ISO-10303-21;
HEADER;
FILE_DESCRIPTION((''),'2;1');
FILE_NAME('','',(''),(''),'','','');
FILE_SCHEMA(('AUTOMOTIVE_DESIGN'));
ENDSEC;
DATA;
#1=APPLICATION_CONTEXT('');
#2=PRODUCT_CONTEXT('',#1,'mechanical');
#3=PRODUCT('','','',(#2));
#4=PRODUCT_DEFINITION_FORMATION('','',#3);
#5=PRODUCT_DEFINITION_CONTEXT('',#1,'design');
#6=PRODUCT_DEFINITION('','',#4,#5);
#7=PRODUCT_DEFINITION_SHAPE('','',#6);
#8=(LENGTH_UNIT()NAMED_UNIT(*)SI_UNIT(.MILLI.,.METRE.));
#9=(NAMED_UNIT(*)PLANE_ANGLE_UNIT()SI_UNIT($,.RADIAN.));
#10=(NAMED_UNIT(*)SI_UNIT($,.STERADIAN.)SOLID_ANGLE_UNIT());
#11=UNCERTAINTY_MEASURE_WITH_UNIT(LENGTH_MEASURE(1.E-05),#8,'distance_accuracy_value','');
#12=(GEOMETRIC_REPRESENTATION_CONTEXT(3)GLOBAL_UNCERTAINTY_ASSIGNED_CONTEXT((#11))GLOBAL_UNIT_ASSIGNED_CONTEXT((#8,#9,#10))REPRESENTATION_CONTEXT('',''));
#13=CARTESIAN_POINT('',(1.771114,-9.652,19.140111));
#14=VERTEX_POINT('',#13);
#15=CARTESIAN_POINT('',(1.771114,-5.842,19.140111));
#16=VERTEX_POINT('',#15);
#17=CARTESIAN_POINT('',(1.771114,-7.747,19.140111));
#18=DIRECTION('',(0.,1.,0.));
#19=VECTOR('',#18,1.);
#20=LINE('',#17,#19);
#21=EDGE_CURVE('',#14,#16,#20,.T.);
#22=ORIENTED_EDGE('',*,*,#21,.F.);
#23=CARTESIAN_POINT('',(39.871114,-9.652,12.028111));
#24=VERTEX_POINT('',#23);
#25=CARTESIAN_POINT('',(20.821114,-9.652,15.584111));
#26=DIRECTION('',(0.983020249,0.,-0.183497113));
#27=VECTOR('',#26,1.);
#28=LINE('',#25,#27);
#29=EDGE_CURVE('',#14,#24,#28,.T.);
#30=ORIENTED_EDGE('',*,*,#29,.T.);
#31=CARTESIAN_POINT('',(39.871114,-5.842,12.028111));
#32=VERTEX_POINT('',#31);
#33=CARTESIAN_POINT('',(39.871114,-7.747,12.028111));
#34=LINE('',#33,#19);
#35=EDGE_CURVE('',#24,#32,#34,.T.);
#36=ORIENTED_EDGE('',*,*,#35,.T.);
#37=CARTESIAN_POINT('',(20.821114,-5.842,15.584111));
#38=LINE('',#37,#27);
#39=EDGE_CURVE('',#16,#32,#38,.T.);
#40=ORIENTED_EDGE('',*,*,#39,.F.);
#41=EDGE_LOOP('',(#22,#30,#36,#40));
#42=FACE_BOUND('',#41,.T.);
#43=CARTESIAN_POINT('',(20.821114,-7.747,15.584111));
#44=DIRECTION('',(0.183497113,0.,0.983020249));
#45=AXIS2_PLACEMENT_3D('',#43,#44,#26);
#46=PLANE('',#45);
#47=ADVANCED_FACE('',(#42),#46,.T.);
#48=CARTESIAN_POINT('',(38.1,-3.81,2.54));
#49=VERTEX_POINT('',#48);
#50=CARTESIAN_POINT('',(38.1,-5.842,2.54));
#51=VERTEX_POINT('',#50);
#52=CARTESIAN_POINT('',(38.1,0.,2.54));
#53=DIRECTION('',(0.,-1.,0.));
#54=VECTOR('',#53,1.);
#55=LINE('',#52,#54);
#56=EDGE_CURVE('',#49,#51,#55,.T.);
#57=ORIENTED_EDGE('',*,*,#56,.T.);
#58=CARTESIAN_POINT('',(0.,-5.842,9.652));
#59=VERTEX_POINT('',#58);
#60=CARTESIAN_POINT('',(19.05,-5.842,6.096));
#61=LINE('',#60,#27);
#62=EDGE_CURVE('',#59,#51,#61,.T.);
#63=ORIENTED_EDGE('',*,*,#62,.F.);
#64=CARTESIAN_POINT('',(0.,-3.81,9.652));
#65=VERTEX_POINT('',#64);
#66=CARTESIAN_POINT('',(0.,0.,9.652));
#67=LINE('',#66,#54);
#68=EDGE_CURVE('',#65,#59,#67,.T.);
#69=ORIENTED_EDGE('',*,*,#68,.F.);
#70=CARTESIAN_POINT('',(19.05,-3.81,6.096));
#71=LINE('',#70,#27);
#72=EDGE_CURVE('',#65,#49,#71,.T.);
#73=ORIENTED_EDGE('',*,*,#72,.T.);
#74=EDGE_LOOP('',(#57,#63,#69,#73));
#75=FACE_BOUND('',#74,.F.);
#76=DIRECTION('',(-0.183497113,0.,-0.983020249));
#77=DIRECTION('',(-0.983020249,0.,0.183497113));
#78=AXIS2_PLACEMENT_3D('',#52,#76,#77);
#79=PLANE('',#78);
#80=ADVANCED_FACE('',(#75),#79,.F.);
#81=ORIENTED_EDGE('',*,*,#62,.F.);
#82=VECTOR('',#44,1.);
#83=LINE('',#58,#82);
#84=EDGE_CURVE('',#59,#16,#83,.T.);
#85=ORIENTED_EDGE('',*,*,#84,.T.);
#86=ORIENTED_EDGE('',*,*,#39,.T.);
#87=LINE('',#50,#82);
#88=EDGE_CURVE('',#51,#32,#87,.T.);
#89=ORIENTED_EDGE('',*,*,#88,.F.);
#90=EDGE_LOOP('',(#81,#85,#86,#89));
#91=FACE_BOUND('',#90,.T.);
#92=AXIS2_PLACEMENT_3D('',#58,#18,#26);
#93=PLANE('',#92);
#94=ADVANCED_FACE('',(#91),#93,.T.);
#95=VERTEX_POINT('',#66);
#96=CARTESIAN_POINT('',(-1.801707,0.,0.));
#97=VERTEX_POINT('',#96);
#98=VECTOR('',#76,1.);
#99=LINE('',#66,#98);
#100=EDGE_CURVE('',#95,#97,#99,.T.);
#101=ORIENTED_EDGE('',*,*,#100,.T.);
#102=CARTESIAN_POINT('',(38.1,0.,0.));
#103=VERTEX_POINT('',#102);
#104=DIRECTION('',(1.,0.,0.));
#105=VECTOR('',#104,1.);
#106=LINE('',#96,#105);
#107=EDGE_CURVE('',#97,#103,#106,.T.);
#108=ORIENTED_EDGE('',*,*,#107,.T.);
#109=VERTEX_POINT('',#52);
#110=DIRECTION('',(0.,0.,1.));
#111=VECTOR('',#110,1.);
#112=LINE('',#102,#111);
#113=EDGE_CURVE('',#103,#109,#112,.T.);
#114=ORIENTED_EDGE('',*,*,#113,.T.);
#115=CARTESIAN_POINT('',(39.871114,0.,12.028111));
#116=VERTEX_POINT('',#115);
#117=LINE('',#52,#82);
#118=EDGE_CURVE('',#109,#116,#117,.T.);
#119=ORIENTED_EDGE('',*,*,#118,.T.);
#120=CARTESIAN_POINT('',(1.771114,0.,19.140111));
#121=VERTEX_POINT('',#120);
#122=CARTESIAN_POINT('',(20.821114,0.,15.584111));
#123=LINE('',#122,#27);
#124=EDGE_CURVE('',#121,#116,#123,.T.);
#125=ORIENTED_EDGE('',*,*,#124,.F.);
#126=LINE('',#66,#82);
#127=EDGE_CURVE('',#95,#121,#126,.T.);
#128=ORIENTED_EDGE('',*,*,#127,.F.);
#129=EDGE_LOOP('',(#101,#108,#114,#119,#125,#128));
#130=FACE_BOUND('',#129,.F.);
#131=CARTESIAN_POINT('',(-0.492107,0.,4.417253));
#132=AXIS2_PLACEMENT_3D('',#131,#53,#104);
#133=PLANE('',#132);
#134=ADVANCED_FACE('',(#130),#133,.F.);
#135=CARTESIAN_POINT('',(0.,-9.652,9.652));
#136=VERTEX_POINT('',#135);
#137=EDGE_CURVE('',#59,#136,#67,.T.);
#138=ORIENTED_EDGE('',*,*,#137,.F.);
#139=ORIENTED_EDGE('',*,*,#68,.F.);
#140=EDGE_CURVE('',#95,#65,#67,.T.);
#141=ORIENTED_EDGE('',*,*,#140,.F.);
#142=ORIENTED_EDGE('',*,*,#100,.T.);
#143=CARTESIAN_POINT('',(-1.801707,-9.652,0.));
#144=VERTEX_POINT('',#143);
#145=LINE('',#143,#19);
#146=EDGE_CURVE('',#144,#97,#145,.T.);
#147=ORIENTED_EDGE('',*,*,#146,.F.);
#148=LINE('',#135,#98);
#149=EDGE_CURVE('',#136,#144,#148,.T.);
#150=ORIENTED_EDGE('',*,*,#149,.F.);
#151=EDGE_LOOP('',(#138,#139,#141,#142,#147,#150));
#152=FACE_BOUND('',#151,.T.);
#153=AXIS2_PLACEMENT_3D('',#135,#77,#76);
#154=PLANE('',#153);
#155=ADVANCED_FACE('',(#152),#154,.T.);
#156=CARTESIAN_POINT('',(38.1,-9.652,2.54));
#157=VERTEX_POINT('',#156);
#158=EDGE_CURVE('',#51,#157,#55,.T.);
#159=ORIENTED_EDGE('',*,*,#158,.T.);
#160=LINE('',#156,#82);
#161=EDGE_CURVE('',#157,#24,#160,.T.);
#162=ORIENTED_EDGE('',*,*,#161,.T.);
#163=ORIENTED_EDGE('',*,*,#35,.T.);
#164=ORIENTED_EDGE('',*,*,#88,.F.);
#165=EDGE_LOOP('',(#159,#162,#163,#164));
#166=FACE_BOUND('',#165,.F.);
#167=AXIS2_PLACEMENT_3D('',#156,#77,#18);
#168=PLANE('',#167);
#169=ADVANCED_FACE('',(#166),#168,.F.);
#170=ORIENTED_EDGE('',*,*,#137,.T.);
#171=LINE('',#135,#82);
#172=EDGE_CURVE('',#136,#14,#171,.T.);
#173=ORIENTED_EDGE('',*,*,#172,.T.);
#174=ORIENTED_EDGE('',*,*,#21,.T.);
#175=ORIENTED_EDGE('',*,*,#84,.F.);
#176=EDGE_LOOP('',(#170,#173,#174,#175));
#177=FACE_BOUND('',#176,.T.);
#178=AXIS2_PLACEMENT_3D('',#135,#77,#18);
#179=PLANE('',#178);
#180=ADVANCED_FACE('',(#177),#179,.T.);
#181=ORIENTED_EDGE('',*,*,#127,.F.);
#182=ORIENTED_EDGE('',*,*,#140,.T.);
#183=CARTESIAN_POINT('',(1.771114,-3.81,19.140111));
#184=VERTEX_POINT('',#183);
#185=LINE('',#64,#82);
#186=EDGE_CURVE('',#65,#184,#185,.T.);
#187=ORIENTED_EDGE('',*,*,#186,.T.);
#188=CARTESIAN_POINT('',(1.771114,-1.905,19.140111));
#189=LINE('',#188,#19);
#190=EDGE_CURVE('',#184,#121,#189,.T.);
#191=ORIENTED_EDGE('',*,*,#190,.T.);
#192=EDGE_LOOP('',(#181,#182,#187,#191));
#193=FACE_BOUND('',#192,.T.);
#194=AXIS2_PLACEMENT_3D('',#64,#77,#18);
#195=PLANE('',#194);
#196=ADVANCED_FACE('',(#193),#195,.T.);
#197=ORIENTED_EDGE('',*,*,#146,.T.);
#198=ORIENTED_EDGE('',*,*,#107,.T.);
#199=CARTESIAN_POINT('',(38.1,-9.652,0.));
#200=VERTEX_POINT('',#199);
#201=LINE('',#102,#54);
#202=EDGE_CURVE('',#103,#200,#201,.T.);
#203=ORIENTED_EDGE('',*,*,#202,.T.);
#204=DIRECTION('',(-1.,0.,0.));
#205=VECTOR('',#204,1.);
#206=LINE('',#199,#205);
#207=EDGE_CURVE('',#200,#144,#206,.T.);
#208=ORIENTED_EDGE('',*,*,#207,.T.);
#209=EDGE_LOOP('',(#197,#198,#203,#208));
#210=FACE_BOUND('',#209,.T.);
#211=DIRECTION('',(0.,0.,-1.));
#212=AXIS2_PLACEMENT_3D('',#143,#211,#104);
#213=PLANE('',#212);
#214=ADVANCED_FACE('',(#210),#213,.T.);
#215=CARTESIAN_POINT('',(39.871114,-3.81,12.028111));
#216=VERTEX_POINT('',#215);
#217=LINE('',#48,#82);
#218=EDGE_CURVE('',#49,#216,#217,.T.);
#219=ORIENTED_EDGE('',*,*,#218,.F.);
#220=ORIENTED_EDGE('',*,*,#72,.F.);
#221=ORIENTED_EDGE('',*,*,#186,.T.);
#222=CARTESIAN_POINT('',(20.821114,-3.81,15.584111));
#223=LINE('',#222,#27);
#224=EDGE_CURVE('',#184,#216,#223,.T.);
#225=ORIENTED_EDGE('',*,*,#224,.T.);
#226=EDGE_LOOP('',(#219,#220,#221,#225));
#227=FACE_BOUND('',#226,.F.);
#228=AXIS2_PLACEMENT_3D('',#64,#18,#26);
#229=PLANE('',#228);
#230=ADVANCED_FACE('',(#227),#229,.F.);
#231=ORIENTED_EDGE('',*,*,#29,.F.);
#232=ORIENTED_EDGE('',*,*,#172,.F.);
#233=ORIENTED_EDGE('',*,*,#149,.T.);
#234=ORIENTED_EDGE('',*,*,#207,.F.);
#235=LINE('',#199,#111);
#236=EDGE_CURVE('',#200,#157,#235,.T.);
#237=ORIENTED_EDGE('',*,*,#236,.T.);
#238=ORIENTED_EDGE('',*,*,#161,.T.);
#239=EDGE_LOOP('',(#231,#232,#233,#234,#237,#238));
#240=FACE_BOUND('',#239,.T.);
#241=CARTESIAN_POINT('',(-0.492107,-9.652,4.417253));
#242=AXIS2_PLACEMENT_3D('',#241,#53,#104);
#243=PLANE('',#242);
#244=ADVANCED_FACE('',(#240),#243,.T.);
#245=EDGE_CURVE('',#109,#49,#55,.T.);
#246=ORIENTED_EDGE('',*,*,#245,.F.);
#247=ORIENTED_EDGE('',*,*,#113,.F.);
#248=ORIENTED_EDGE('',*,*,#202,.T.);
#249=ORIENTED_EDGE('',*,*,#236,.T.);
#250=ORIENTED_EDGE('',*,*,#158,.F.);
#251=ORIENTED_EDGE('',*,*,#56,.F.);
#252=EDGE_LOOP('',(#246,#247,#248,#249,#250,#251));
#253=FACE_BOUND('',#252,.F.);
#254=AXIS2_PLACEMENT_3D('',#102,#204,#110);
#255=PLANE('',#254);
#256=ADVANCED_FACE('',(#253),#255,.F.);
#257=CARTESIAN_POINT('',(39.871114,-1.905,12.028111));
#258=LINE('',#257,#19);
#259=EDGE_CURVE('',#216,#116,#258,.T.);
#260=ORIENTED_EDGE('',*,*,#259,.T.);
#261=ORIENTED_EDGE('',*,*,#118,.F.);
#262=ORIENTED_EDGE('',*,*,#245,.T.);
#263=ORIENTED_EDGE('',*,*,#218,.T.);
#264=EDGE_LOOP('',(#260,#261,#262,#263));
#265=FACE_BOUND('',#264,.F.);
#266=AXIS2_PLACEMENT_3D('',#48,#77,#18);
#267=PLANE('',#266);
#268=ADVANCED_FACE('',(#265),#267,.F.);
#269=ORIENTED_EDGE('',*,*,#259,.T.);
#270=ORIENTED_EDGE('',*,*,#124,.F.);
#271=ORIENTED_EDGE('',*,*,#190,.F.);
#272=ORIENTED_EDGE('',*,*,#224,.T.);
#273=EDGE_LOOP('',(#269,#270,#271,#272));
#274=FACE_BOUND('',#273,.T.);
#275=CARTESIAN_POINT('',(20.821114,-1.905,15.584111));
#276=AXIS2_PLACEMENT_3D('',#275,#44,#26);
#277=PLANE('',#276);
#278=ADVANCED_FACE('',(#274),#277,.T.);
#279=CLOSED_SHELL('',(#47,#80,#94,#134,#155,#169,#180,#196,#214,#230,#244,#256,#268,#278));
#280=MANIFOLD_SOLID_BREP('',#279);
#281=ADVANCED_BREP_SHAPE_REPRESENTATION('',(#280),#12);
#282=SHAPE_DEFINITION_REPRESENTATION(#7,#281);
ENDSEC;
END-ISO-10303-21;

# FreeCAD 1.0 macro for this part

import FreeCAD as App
import Part
import Sketcher
from FreeCAD import Vector
Q = App.Units.Quantity

doc = App.newDocument("Part")
params = doc.addObject("Spreadsheet::Sheet", "Params")
for row, (alias, value) in enumerate([
    ("sketch1_width", "1.5 in"),
    ("sketch1_height", "0.1 in"),
    ("sketch1_height2", "0.38 in"),
    ("pad1_length", "0.38 in"),
    ("sketch2_height", "0.15 in"),
    ("pad2_length", "0.38 in"),
    ("sketch3_height", "0.38 in"),
    ("pad3_length", "0.38 in"),
], start=1):
    params.set(f"A{row}", alias)
    params.set(f"B{row}", "=" + value)
    params.setAlias(f"B{row}", alias)

body = doc.addObject("PartDesign::Body", "Body")

sketch1 = body.newObject("Sketcher::SketchObject", "Sketch")
sketch1.AttachmentSupport = (doc.getObject("XZ_Plane"), [""])
sketch1.MapMode = "FlatFace"
sketch1.addGeometry([
    Part.LineSegment(Vector(0, 9.7, 0), Vector(0, 0, 0)),
    Part.LineSegment(Vector(0, 0, 0), Vector(38.1, 0, 0)),
    Part.LineSegment(Vector(38.1, 0, 0), Vector(38.1, 2.5, 0)),
    Part.LineSegment(Vector(38.1, 2.5, 0), Vector(0, 9.7, 0)),
], False)
sketch1.addConstraint([
    Sketcher.Constraint("Coincident", 0, 2, 1, 1),
    Sketcher.Constraint("Coincident", 1, 2, 2, 1),
    Sketcher.Constraint("Coincident", 2, 2, 3, 1),
    Sketcher.Constraint("Coincident", 3, 2, 0, 1),
    Sketcher.Constraint("Vertical", 0),
    Sketcher.Constraint("Horizontal", 1),
    Sketcher.Constraint("Vertical", 2),
    Sketcher.Constraint("Coincident", 0, 2, -1, 1),
    Sketcher.Constraint("DistanceX", 1, 1, 1, 2, Q("1.5 in")),
    Sketcher.Constraint("DistanceY", 2, 1, 2, 2, Q("0.1 in")),
    Sketcher.Constraint("DistanceY", 0, 2, 0, 1, Q("0.38 in")),
])
sketch1.setExpression("Constraints[8]", "Params.sketch1_width")
sketch1.setExpression("Constraints[9]", "Params.sketch1_height")
sketch1.setExpression("Constraints[10]", "Params.sketch1_height2")
pad1 = body.newObject("PartDesign::Pad", "Pad")
pad1.Profile = sketch1
pad1.setExpression("Length", "Params.pad1_length")

sketch2 = body.newObject("Sketcher::SketchObject", "Sketch001")
sketch2.Placement = App.Placement(Vector(1.741041, 0, 9.327006), App.Rotation(Vector(0.983020249, 0, -0.183497113), Vector(0, 1, 0), Vector(0.183497113, 0, 0.983020249), "ZXY"))
sketch2.addGeometry([
    Part.LineSegment(Vector(-1.8, -5.8, 0), Vector(-1.8, -9.7, 0)),
    Part.LineSegment(Vector(-1.8, -9.7, 0), Vector(37, -9.7, 0)),
    Part.LineSegment(Vector(37, -9.7, 0), Vector(37, -5.8, 0)),
    Part.LineSegment(Vector(37, -5.8, 0), Vector(-1.8, -5.8, 0)),
    Part.LineSegment(Vector(-1.8, 0, 0), Vector(-1.8, -3.8, 0)),
    Part.LineSegment(Vector(-1.8, -3.8, 0), Vector(37, -3.8, 0)),
    Part.LineSegment(Vector(37, -3.8, 0), Vector(37, 0, 0)),
    Part.LineSegment(Vector(37, 0, 0), Vector(-1.8, 0, 0)),
], False)
sketch2.addConstraint([
    Sketcher.Constraint("Coincident", 0, 2, 1, 1),
    Sketcher.Constraint("Coincident", 1, 2, 2, 1),
    Sketcher.Constraint("Coincident", 2, 2, 3, 1),
    Sketcher.Constraint("Coincident", 3, 2, 0, 1),
    Sketcher.Constraint("Coincident", 4, 2, 5, 1),
    Sketcher.Constraint("Coincident", 5, 2, 6, 1),
    Sketcher.Constraint("Coincident", 6, 2, 7, 1),
    Sketcher.Constraint("Coincident", 7, 2, 4, 1),
    Sketcher.Constraint("Vertical", 0),
    Sketcher.Constraint("Horizontal", 1),
    Sketcher.Constraint("Vertical", 2),
    Sketcher.Constraint("Horizontal", 3),
    Sketcher.Constraint("Vertical", 4),
    Sketcher.Constraint("Horizontal", 5),
    Sketcher.Constraint("Vertical", 6),
    Sketcher.Constraint("Horizontal", 7),
    Sketcher.Constraint("PointOnObject", 6, 2, -1),
    Sketcher.Constraint("Vertical", 3, 2, 4, 2),
    Sketcher.Constraint("Vertical", 2, 2, 5, 2),
    Sketcher.Constraint("Equal", 2, 4),
    Sketcher.Constraint("DistanceY", 0, 2, 0, 1, Q("0.15 in")),
    Sketcher.Constraint("DistanceY", 0, 2, -1, 1, Q("0.38 in")),
    Sketcher.Constraint("DistanceX", 1, 1, 1, 2, Q("38.758103 mm")),
    Sketcher.Constraint("DistanceX", -1, 1, 1, 2, Q("36.986989 mm")),
])
sketch2.setExpression("Constraints[20]", "Params.sketch2_height")
pad2 = body.newObject("PartDesign::Pad", "Pad001")
pad2.Profile = sketch2
pad2.setExpression("Length", "Params.pad2_length")

sketch3 = body.newObject("Sketcher::SketchObject", "Sketch002")
sketch3.AttachmentSupport = (doc.getObject("XZ_Plane"), [""])
sketch3.MapMode = "FlatFace"
sketch3.AttachmentOffset = App.Placement(Vector(0, 0, 0.38 * 25.4), App.Rotation())
sketch3.addGeometry([
    Part.LineSegment(Vector(0, 0, 0), Vector(0, 9.7, 0)),
    Part.LineSegment(Vector(0, 9.7, 0), Vector(-1.8, 0, 0)),
    Part.LineSegment(Vector(-1.8, 0, 0), Vector(0, 0, 0)),
], False)
sketch3.addConstraint([
    Sketcher.Constraint("Coincident", 0, 2, 1, 1),
    Sketcher.Constraint("Coincident", 1, 2, 2, 1),
    Sketcher.Constraint("Coincident", 2, 2, 0, 1),
    Sketcher.Constraint("Vertical", 0),
    Sketcher.Constraint("Horizontal", 2),
    Sketcher.Constraint("Coincident", 2, 2, -1, 1),
    Sketcher.Constraint("DistanceY", 0, 1, 0, 2, Q("0.38 in")),
    Sketcher.Constraint("Distance", 1, Q("9.818719 mm")),
])
sketch3.setExpression("Constraints[6]", "Params.sketch3_height")
pad3 = body.newObject("PartDesign::Pad", "Pad002")
pad3.Profile = sketch3
pad3.setExpression("Length", "Params.pad3_length")
pad3.Reversed = True

doc.recompute()
